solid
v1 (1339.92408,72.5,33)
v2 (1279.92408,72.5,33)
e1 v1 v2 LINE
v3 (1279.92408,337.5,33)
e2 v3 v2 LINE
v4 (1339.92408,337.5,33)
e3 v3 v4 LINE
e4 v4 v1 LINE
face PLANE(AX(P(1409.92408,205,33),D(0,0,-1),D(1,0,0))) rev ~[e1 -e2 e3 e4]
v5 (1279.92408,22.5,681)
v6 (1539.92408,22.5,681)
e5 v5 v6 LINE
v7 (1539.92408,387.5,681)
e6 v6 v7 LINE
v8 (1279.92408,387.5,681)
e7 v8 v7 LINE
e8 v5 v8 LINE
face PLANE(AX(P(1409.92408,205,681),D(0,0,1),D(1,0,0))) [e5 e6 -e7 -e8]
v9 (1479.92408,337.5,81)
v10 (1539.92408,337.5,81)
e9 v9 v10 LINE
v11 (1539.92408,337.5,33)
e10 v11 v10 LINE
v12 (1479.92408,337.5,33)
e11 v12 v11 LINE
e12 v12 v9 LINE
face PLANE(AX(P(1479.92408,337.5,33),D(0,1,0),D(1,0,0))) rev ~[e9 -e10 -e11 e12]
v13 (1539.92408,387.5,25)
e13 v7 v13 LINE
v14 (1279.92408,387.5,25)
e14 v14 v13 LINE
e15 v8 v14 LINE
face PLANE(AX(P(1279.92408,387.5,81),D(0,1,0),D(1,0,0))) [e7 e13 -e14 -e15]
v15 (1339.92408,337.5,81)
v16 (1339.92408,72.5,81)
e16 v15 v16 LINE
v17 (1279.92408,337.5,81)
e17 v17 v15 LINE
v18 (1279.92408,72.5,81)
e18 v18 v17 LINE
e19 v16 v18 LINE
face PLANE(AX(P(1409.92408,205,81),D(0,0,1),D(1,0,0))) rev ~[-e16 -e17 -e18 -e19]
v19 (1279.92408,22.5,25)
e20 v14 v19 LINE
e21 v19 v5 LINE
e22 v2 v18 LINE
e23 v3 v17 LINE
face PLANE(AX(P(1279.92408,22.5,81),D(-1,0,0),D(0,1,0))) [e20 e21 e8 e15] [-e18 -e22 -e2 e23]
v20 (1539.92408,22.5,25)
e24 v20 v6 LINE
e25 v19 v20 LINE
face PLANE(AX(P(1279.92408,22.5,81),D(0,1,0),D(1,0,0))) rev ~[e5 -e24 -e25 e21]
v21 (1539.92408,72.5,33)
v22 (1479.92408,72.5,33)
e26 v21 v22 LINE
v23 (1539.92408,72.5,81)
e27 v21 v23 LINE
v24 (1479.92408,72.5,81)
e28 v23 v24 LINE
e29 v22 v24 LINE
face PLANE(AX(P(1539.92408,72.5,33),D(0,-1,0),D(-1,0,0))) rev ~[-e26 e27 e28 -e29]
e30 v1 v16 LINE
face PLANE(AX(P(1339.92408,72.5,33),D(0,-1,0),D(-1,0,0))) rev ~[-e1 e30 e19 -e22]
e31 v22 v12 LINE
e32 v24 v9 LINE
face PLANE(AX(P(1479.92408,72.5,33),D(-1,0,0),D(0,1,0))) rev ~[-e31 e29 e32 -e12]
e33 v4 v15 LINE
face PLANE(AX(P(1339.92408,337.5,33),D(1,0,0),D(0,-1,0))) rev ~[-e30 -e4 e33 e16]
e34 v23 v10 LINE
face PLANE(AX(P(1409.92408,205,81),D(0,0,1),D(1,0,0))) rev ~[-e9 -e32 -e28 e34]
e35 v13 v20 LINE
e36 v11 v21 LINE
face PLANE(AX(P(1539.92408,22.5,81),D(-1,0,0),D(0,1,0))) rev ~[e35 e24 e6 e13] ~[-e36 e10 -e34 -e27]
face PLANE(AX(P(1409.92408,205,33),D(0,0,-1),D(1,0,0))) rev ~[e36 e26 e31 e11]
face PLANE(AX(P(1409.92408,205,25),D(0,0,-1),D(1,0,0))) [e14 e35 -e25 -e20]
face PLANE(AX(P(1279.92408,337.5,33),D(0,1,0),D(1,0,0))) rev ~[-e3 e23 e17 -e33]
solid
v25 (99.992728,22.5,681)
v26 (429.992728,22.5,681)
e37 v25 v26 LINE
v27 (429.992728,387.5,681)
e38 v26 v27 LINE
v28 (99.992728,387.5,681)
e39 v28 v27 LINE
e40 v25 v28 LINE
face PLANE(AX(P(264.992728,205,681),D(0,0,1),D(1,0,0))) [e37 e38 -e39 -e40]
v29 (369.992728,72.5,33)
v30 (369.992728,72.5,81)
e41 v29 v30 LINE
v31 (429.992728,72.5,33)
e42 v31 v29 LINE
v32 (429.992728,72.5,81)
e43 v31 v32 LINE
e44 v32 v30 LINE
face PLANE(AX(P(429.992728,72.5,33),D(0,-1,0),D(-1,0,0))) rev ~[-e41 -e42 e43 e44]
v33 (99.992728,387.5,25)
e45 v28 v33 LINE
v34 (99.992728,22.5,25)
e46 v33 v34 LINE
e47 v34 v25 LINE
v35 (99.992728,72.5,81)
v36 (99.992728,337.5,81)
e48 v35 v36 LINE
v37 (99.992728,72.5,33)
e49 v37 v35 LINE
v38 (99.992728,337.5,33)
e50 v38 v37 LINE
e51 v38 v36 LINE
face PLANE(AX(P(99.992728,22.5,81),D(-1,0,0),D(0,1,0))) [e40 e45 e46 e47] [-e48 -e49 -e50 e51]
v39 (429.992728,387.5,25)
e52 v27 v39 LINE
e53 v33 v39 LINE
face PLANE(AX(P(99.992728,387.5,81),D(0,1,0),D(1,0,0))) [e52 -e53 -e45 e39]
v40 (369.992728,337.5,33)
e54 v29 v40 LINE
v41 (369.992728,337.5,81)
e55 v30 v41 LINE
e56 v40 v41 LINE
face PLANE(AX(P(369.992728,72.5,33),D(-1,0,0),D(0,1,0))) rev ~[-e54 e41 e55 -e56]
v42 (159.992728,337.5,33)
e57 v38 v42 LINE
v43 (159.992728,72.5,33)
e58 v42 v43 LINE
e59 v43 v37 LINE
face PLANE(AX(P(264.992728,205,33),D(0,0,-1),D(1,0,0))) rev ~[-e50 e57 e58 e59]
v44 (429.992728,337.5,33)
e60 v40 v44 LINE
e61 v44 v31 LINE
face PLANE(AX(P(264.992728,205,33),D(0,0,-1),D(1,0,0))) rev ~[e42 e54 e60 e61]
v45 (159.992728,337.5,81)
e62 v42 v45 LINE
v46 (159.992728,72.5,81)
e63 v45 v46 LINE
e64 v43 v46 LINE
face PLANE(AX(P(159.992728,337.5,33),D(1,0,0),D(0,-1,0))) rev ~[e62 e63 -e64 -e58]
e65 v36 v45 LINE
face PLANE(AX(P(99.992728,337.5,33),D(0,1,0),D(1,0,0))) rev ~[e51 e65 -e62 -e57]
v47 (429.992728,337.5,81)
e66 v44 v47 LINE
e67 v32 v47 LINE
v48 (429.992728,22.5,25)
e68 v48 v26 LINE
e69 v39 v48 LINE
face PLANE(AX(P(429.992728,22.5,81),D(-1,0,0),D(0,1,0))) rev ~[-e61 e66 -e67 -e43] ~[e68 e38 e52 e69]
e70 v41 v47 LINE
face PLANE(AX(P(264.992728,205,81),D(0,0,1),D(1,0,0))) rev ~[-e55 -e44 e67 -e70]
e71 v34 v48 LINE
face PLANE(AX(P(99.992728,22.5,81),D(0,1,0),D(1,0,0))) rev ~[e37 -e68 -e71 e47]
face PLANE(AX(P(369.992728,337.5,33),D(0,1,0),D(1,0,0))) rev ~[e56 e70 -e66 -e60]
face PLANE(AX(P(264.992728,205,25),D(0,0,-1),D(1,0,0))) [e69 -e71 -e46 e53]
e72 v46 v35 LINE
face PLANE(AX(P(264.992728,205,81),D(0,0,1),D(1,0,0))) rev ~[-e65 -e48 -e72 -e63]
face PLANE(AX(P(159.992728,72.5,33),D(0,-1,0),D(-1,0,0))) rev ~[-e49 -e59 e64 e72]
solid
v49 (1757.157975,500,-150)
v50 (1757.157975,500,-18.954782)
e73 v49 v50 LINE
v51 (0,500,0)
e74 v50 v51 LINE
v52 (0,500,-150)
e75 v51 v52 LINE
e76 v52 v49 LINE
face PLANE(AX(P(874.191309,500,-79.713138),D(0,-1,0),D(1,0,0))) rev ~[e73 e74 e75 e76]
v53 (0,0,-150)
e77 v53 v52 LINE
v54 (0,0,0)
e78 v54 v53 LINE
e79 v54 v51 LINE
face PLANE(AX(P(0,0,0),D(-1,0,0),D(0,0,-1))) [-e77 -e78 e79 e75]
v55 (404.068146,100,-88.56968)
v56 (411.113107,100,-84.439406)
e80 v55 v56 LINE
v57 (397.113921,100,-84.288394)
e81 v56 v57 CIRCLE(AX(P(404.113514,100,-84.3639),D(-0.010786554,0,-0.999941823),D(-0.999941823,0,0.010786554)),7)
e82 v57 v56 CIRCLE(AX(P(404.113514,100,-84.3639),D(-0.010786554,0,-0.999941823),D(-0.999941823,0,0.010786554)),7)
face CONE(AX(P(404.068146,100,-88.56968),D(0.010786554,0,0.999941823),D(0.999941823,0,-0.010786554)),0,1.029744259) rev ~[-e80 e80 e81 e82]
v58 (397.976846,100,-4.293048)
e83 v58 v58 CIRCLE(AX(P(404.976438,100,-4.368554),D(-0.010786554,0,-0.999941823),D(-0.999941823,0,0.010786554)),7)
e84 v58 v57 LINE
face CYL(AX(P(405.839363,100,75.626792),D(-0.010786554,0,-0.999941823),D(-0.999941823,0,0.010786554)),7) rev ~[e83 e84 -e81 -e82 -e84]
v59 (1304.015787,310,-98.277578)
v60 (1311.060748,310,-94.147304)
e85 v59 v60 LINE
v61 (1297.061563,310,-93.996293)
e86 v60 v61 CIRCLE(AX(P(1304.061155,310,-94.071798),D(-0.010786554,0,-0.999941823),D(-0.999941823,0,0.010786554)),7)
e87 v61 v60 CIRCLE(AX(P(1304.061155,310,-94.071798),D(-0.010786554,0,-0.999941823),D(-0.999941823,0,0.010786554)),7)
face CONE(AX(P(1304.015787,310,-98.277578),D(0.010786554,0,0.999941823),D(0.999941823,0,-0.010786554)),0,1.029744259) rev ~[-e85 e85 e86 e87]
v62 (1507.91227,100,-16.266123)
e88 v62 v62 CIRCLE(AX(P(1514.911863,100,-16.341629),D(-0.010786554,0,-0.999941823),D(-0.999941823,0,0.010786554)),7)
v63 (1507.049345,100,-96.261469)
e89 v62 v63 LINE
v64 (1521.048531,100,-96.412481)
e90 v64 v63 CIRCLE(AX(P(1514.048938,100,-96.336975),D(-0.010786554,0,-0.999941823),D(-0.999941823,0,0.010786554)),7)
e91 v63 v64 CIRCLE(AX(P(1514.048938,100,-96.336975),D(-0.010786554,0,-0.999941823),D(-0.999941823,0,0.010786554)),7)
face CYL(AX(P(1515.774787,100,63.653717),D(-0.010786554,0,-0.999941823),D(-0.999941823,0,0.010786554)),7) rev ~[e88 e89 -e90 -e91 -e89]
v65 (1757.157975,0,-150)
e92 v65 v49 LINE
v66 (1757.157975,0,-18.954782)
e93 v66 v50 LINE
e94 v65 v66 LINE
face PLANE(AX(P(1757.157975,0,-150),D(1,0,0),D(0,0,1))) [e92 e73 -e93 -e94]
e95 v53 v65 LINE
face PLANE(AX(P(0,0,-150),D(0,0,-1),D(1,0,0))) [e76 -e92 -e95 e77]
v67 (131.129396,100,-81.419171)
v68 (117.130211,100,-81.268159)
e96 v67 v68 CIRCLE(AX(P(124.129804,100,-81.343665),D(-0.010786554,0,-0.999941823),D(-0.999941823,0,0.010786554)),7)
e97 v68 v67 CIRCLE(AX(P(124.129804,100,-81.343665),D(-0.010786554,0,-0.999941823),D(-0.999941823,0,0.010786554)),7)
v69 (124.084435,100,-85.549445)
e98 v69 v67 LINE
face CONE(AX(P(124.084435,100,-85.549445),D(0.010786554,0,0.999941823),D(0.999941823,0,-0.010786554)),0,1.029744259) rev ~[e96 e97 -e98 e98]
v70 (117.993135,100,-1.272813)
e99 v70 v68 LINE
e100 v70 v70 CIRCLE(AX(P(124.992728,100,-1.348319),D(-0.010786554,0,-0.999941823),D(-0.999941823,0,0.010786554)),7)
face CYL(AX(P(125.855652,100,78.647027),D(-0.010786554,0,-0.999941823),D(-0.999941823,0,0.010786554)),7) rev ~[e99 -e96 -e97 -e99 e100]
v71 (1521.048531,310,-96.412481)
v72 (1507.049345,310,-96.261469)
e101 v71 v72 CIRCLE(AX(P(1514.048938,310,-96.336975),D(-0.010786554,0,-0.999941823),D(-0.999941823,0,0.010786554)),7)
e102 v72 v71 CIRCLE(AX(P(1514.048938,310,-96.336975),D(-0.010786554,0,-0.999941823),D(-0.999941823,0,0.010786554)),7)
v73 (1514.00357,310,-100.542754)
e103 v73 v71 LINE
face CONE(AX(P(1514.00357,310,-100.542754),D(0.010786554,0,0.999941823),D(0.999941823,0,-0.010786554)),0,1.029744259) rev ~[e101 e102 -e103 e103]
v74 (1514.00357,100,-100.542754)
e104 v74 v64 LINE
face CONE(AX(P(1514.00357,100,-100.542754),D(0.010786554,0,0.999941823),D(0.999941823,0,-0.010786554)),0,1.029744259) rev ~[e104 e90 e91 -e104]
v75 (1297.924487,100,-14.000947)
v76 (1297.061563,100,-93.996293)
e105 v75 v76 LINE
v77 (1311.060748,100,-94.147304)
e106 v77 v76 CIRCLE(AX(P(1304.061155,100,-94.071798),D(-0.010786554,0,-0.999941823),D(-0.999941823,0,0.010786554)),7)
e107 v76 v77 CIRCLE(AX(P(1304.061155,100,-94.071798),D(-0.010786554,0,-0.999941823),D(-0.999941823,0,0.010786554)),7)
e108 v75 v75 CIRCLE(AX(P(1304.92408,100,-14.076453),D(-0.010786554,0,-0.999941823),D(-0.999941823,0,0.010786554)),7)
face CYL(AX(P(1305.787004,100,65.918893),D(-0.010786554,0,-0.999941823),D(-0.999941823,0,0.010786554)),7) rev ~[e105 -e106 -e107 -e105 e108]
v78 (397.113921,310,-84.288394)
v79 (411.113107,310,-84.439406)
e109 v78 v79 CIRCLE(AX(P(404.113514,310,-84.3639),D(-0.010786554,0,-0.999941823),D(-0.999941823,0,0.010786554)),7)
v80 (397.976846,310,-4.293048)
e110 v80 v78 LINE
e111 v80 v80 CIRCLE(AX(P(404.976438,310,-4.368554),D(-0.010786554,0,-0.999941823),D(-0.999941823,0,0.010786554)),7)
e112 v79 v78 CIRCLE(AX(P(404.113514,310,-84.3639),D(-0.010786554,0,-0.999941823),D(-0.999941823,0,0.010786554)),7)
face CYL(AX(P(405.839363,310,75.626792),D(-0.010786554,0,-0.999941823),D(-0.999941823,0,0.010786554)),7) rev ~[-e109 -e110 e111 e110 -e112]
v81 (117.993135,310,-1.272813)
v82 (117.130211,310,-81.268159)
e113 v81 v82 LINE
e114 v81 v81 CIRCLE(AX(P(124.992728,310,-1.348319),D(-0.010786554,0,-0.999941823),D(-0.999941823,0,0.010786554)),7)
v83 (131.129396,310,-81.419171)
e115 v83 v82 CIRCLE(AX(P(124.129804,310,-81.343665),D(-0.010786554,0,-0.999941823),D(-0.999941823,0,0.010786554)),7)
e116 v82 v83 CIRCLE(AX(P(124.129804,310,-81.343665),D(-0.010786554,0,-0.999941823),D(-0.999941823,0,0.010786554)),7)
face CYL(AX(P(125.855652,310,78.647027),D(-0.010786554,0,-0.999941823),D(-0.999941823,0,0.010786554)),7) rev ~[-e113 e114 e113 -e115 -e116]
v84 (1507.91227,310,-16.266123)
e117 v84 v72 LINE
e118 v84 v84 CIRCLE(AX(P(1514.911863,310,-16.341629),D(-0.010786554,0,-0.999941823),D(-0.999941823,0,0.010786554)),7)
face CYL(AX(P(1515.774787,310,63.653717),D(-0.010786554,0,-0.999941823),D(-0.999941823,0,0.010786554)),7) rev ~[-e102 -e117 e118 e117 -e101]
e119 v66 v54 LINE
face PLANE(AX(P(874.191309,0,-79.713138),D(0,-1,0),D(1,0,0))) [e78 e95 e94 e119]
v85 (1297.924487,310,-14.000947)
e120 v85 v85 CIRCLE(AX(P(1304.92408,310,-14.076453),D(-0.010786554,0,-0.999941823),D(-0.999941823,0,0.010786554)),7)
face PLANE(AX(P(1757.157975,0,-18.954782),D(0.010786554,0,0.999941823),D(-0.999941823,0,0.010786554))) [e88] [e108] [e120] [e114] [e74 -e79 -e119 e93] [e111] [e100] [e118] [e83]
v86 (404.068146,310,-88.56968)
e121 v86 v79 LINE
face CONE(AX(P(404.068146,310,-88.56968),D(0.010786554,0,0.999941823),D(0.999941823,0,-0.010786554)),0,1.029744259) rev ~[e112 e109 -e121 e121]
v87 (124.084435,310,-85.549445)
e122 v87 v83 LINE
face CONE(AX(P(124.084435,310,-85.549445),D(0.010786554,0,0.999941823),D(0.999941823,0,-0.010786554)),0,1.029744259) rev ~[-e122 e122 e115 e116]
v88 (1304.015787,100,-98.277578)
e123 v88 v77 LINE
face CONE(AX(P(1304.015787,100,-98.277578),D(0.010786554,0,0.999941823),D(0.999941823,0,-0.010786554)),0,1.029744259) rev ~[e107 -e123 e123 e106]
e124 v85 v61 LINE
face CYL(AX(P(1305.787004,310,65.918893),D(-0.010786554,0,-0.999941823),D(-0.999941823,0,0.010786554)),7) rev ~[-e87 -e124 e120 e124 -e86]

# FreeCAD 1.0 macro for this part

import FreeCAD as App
import Part
import Sketcher

V = App.Vector


def add_polygon(sketch, points):
    """Adds a closed chain of lines whose ends are joined by coincident constraints."""
    first, n = sketch.GeometryCount, len(points)
    for a, b in zip(points, points[1:] + points[:1]):
        sketch.addGeometry(Part.LineSegment(App.Vector(*a, 0), App.Vector(*b, 0)), False)
    for i in range(n):
        sketch.addConstraint(Sketcher.Constraint("Coincident", first + i, 2, first + (i + 1) % n, 1))

doc = App.newDocument("Part")
params = doc.addObject("Spreadsheet::Sheet", "Params")
for row, (alias, value) in enumerate([
    ("sketch1_height", "150 mm"),
    ("pad1_length", "500 mm"),
    ("sketch2_diameter", "14 mm"),
    ("hole_diameter", "14 mm"),
    ("hole_depth", "80 mm"),
    ("sketch3_width", "330 mm"),
    ("sketch3_height", "365 mm"),
    ("pad2_length", "8 mm"),
    ("sketch4_width", "60 mm"),
    ("sketch4_width2", "330 mm"),
    ("sketch4_height", "50 mm"),
    ("sketch4_height2", "265 mm"),
    ("pad3_length", "48 mm"),
    ("sketch5_width", "330 mm"),
    ("sketch5_height", "365 mm"),
    ("pad4_length", "600 mm"),
    ("sketch6_width", "260 mm"),
    ("sketch6_height", "365 mm"),
    ("pad5_length", "8 mm"),
    ("sketch7_width", "60 mm"),
    ("sketch7_width2", "260 mm"),
    ("sketch7_height", "50 mm"),
    ("sketch7_height2", "265 mm"),
    ("pad6_length", "48 mm"),
    ("sketch8_width", "260 mm"),
    ("sketch8_height", "365 mm"),
    ("pad7_length", "600 mm"),
], start=1):
    params.set(f"A{row}", alias)
    params.set(f"B{row}", "=" + value)
    params.setAlias(f"B{row}", alias)

body = doc.addObject("PartDesign::Body", "Body")

sketch1 = body.newObject("Sketcher::SketchObject", "Sketch")
sketch1.AttachmentSupport = (doc.getObject("XZ_Plane"), [""])
sketch1.MapMode = "FlatFace"
add_polygon(sketch1, [(1757, -19), (0, 0), (0, -150), (1757, -150)])
sketch1.addConstraint([
    Sketcher.Constraint("Vertical", 1),
    Sketcher.Constraint("Horizontal", 2),
    Sketcher.Constraint("Vertical", 3),
    Sketcher.Constraint("Coincident", 0, 2, -1, 1),
    Sketcher.Constraint("DistanceY", 1, 2, 1, 1, 150.0),
    Sketcher.Constraint("DistanceY", 3, 1, 3, 2, 131.045218),
    Sketcher.Constraint("DistanceX", 2, 1, 2, 2, 1757.157975),
])
sketch1.setExpression("Constraints[8]", "Params.sketch1_height")
pad1 = body.newObject("PartDesign::Pad", "Pad")
pad1.Profile = sketch1
pad1.setExpression("Length", "Params.pad1_length")
pad1.Reversed = True

sketch2 = body.newObject("Sketcher::SketchObject", "Sketch001")
sketch2.Placement = App.Placement(V(0, 0, 0), App.Rotation(V(0.999941823, 0, -0.010786554), V(0, 0.999999999, 0), V(0.010786554, 0, 0.999941823), "ZXY"))
sketch2.addGeometry([
    Part.Circle(V(125, 310, 0), V(0, 0, 1), 7),
    Part.Circle(V(125, 100, 0), V(0, 0, 1), 7),
    Part.Circle(V(405, 100, 0), V(0, 0, 1), 7),
    Part.Circle(V(405, 310, 0), V(0, 0, 1), 7),
    Part.Circle(V(1305, 100, 0), V(0, 0, 1), 7),
    Part.Circle(V(1515, 100, 0), V(0, 0, 1), 7),
    Part.Circle(V(1515, 310, 0), V(0, 0, 1), 7),
    Part.Circle(V(1305, 310, 0), V(0, 0, 1), 7),
], False)
sketch2.addConstraint([
    Sketcher.Constraint("Equal", 0, 1),
    Sketcher.Constraint("Equal", 1, 2),
    Sketcher.Constraint("Equal", 2, 3),
    Sketcher.Constraint("Equal", 3, 4),
    Sketcher.Constraint("Equal", 4, 5),
    Sketcher.Constraint("Equal", 5, 6),
    Sketcher.Constraint("Equal", 6, 7),
    Sketcher.Constraint("Horizontal", 1, 3, 2, 3),
    Sketcher.Constraint("Horizontal", 0, 3, 3, 3),
    Sketcher.Constraint("Horizontal", 2, 3, 4, 3),
    Sketcher.Constraint("Horizontal", 4, 3, 5, 3),
    Sketcher.Constraint("Horizontal", 3, 3, 6, 3),
    Sketcher.Constraint("Horizontal", 6, 3, 7, 3),
    Sketcher.Constraint("Vertical", 0, 3, 1, 3),
    Sketcher.Constraint("Vertical", 2, 3, 3, 3),
    Sketcher.Constraint("Vertical", 5, 3, 6, 3),
    Sketcher.Constraint("Vertical", 4, 3, 7, 3),
    Sketcher.Constraint("Diameter", 0, 14.0),
    Sketcher.Constraint("DistanceX", -1, 1, 0, 3, 125.0),
    Sketcher.Constraint("DistanceY", -1, 1, 0, 3, 309.999999),
    Sketcher.Constraint("DistanceY", -1, 1, 1, 3, 100.0),
    Sketcher.Constraint("DistanceX", -1, 1, 2, 3, 405.0),
    Sketcher.Constraint("DistanceX", -1, 1, 4, 3, 1304.999999),
    Sketcher.Constraint("DistanceX", -1, 1, 5, 3, 1514.999999),
])
sketch2.setExpression("Constraints[17]", "Params.sketch2_diameter")
doc.recompute()
hole = body.newObject("PartDesign::Hole", "Hole")
hole.Profile = sketch2
hole.ThreadType = "None"
hole.setExpression("Diameter", "Params.hole_diameter")
hole.DepthType = "Dimension"
hole.setExpression("Depth", "Params.hole_depth")
hole.DrillPoint = "Angled"
hole.DrillPointAngle = 118
body2 = doc.addObject("PartDesign::Body", "Body001")

sketch3 = body2.newObject("Sketcher::SketchObject", "Sketch002")
sketch3.AttachmentSupport = (doc.getObject("XY_Plane001"), [""])
sketch3.MapMode = "FlatFace"
sketch3.AttachmentOffset = App.Placement(V(0, 0, 25), App.Rotation())
add_polygon(sketch3, [(100, 22), (100, 388), (430, 388), (430, 22)])
sketch3.addConstraint([
    Sketcher.Constraint("Vertical", 0),
    Sketcher.Constraint("Horizontal", 1),
    Sketcher.Constraint("Vertical", 2),
    Sketcher.Constraint("Horizontal", 3),
    Sketcher.Constraint("DistanceX", 1, 1, 1, 2, 330.0),
    Sketcher.Constraint("DistanceY", 0, 1, 0, 2, 365.0),
    Sketcher.Constraint("DistanceY", -1, 1, 0, 2, 387.5),
    Sketcher.Constraint("DistanceX", -1, 1, 0, 2, 99.992728),
])
sketch3.setExpression("Constraints[8]", "Params.sketch3_width")
sketch3.setExpression("Constraints[9]", "Params.sketch3_height")
pad2 = body2.newObject("PartDesign::Pad", "Pad001")
pad2.Profile = sketch3
pad2.setExpression("Length", "Params.pad2_length")

sketch4 = body2.newObject("Sketcher::SketchObject", "Sketch003")
sketch4.AttachmentSupport = (doc.getObject("XY_Plane001"), [""])
sketch4.MapMode = "FlatFace"
sketch4.AttachmentOffset = App.Placement(V(0, 0, 33), App.Rotation())
add_polygon(sketch4, [(100, 388), (100, 338), (160, 338), (160, 72), (100, 72), (100, 22), (430, 22), (430, 72), (370, 72), (370, 338), (430, 338), (430, 388)])
sketch4.addConstraint([
    Sketcher.Constraint("Vertical", 0),
    Sketcher.Constraint("Horizontal", 1),
    Sketcher.Constraint("Vertical", 2),
    Sketcher.Constraint("Horizontal", 3),
    Sketcher.Constraint("Vertical", 4),
    Sketcher.Constraint("Horizontal", 5),
    Sketcher.Constraint("Vertical", 6),
    Sketcher.Constraint("Horizontal", 7),
    Sketcher.Constraint("Vertical", 8),
    Sketcher.Constraint("Horizontal", 9),
    Sketcher.Constraint("Vertical", 10),
    Sketcher.Constraint("Horizontal", 11),
    Sketcher.Constraint("Horizontal", 3, 2, 6, 2),
    Sketcher.Constraint("Horizontal", 1, 2, 8, 2),
    Sketcher.Constraint("Vertical", 0, 2, 3, 2),
    Sketcher.Constraint("Vertical", 6, 2, 9, 2),
    Sketcher.Constraint("Equal", 3, 7),
    Sketcher.Constraint("Equal", 0, 4),
    Sketcher.Constraint("DistanceX", 1, 1, 1, 2, 60.0),
    Sketcher.Constraint("DistanceX", 5, 1, 5, 2, 330.0),
    Sketcher.Constraint("DistanceY", 0, 2, 0, 1, 50.0),
    Sketcher.Constraint("DistanceY", 2, 2, 2, 1, 265.0),
    Sketcher.Constraint("DistanceY", -1, 1, 0, 2, 337.5),
    Sketcher.Constraint("DistanceX", -1, 1, 0, 2, 99.992728),
])
sketch4.setExpression("Constraints[30]", "Params.sketch4_width")
sketch4.setExpression("Constraints[31]", "Params.sketch4_width2")
sketch4.setExpression("Constraints[32]", "Params.sketch4_height")
sketch4.setExpression("Constraints[33]", "Params.sketch4_height2")
pad3 = body2.newObject("PartDesign::Pad", "Pad002")
pad3.Profile = sketch4
pad3.setExpression("Length", "Params.pad3_length")

sketch5 = body2.newObject("Sketcher::SketchObject", "Sketch004")
sketch5.AttachmentSupport = (doc.getObject("XY_Plane001"), [""])
sketch5.MapMode = "FlatFace"
sketch5.AttachmentOffset = App.Placement(V(0, 0, 81), App.Rotation())
add_polygon(sketch5, [(100, 388), (100, 22), (430, 22), (430, 388)])
sketch5.addConstraint([
    Sketcher.Constraint("Vertical", 0),
    Sketcher.Constraint("Horizontal", 1),
    Sketcher.Constraint("Vertical", 2),
    Sketcher.Constraint("Horizontal", 3),
    Sketcher.Constraint("DistanceX", 1, 1, 1, 2, 330.0),
    Sketcher.Constraint("DistanceY", 0, 2, 0, 1, 365.0),
    Sketcher.Constraint("DistanceY", -1, 1, 0, 2, 22.5),
    Sketcher.Constraint("DistanceX", -1, 1, 0, 2, 99.992728),
])
sketch5.setExpression("Constraints[8]", "Params.sketch5_width")
sketch5.setExpression("Constraints[9]", "Params.sketch5_height")
pad4 = body2.newObject("PartDesign::Pad", "Pad003")
pad4.Profile = sketch5
pad4.setExpression("Length", "Params.pad4_length")
body3 = doc.addObject("PartDesign::Body", "Body002")

sketch6 = body3.newObject("Sketcher::SketchObject", "Sketch005")
sketch6.AttachmentSupport = (doc.getObject("XY_Plane002"), [""])
sketch6.MapMode = "FlatFace"
sketch6.AttachmentOffset = App.Placement(V(0, 0, 25), App.Rotation())
add_polygon(sketch6, [(1280, 22), (1280, 388), (1540, 388), (1540, 22)])
sketch6.addConstraint([
    Sketcher.Constraint("Vertical", 0),
    Sketcher.Constraint("Horizontal", 1),
    Sketcher.Constraint("Vertical", 2),
    Sketcher.Constraint("Horizontal", 3),
    Sketcher.Constraint("DistanceX", 1, 1, 1, 2, 260.0),
    Sketcher.Constraint("DistanceY", 0, 1, 0, 2, 365.0),
    Sketcher.Constraint("DistanceY", -1, 1, 0, 2, 387.5),
    Sketcher.Constraint("DistanceX", -1, 1, 0, 2, 1279.92408),
])
sketch6.setExpression("Constraints[8]", "Params.sketch6_width")
sketch6.setExpression("Constraints[9]", "Params.sketch6_height")
pad5 = body3.newObject("PartDesign::Pad", "Pad004")
pad5.Profile = sketch6
pad5.setExpression("Length", "Params.pad5_length")

sketch7 = body3.newObject("Sketcher::SketchObject", "Sketch006")
sketch7.AttachmentSupport = (doc.getObject("XY_Plane002"), [""])
sketch7.MapMode = "FlatFace"
sketch7.AttachmentOffset = App.Placement(V(0, 0, 33), App.Rotation())
add_polygon(sketch7, [(1280, 388), (1280, 338), (1340, 338), (1340, 72), (1280, 72), (1280, 22), (1540, 22), (1540, 72), (1480, 72), (1480, 338), (1540, 338), (1540, 388)])
sketch7.addConstraint([
    Sketcher.Constraint("Vertical", 0),
    Sketcher.Constraint("Horizontal", 1),
    Sketcher.Constraint("Vertical", 2),
    Sketcher.Constraint("Horizontal", 3),
    Sketcher.Constraint("Vertical", 4),
    Sketcher.Constraint("Horizontal", 5),
    Sketcher.Constraint("Vertical", 6),
    Sketcher.Constraint("Horizontal", 7),
    Sketcher.Constraint("Vertical", 8),
    Sketcher.Constraint("Horizontal", 9),
    Sketcher.Constraint("Vertical", 10),
    Sketcher.Constraint("Horizontal", 11),
    Sketcher.Constraint("Horizontal", 3, 2, 6, 2),
    Sketcher.Constraint("Horizontal", 1, 2, 8, 2),
    Sketcher.Constraint("Vertical", 0, 2, 3, 2),
    Sketcher.Constraint("Vertical", 6, 2, 9, 2),
    Sketcher.Constraint("Equal", 3, 7),
    Sketcher.Constraint("Equal", 0, 4),
    Sketcher.Constraint("DistanceX", 1, 1, 1, 2, 60.0),
    Sketcher.Constraint("DistanceX", 5, 1, 5, 2, 260.0),
    Sketcher.Constraint("DistanceY", 0, 2, 0, 1, 50.0),
    Sketcher.Constraint("DistanceY", 2, 2, 2, 1, 265.0),
    Sketcher.Constraint("DistanceY", -1, 1, 0, 2, 337.5),
    Sketcher.Constraint("DistanceX", -1, 1, 0, 2, 1279.92408),
])
sketch7.setExpression("Constraints[30]", "Params.sketch7_width")
sketch7.setExpression("Constraints[31]", "Params.sketch7_width2")
sketch7.setExpression("Constraints[32]", "Params.sketch7_height")
sketch7.setExpression("Constraints[33]", "Params.sketch7_height2")
pad6 = body3.newObject("PartDesign::Pad", "Pad005")
pad6.Profile = sketch7
pad6.setExpression("Length", "Params.pad6_length")

sketch8 = body3.newObject("Sketcher::SketchObject", "Sketch007")
sketch8.AttachmentSupport = (doc.getObject("XY_Plane002"), [""])
sketch8.MapMode = "FlatFace"
sketch8.AttachmentOffset = App.Placement(V(0, 0, 81), App.Rotation())
add_polygon(sketch8, [(1280, 388), (1280, 22), (1540, 22), (1540, 388)])
sketch8.addConstraint([
    Sketcher.Constraint("Vertical", 0),
    Sketcher.Constraint("Horizontal", 1),
    Sketcher.Constraint("Vertical", 2),
    Sketcher.Constraint("Horizontal", 3),
    Sketcher.Constraint("DistanceX", 1, 1, 1, 2, 260.0),
    Sketcher.Constraint("DistanceY", 0, 2, 0, 1, 365.0),
    Sketcher.Constraint("DistanceY", -1, 1, 0, 2, 22.5),
    Sketcher.Constraint("DistanceX", -1, 1, 0, 2, 1279.92408),
])
sketch8.setExpression("Constraints[8]", "Params.sketch8_width")
sketch8.setExpression("Constraints[9]", "Params.sketch8_height")
pad7 = body3.newObject("PartDesign::Pad", "Pad006")
pad7.Profile = sketch8
pad7.setExpression("Length", "Params.pad7_length")

doc.recompute()
